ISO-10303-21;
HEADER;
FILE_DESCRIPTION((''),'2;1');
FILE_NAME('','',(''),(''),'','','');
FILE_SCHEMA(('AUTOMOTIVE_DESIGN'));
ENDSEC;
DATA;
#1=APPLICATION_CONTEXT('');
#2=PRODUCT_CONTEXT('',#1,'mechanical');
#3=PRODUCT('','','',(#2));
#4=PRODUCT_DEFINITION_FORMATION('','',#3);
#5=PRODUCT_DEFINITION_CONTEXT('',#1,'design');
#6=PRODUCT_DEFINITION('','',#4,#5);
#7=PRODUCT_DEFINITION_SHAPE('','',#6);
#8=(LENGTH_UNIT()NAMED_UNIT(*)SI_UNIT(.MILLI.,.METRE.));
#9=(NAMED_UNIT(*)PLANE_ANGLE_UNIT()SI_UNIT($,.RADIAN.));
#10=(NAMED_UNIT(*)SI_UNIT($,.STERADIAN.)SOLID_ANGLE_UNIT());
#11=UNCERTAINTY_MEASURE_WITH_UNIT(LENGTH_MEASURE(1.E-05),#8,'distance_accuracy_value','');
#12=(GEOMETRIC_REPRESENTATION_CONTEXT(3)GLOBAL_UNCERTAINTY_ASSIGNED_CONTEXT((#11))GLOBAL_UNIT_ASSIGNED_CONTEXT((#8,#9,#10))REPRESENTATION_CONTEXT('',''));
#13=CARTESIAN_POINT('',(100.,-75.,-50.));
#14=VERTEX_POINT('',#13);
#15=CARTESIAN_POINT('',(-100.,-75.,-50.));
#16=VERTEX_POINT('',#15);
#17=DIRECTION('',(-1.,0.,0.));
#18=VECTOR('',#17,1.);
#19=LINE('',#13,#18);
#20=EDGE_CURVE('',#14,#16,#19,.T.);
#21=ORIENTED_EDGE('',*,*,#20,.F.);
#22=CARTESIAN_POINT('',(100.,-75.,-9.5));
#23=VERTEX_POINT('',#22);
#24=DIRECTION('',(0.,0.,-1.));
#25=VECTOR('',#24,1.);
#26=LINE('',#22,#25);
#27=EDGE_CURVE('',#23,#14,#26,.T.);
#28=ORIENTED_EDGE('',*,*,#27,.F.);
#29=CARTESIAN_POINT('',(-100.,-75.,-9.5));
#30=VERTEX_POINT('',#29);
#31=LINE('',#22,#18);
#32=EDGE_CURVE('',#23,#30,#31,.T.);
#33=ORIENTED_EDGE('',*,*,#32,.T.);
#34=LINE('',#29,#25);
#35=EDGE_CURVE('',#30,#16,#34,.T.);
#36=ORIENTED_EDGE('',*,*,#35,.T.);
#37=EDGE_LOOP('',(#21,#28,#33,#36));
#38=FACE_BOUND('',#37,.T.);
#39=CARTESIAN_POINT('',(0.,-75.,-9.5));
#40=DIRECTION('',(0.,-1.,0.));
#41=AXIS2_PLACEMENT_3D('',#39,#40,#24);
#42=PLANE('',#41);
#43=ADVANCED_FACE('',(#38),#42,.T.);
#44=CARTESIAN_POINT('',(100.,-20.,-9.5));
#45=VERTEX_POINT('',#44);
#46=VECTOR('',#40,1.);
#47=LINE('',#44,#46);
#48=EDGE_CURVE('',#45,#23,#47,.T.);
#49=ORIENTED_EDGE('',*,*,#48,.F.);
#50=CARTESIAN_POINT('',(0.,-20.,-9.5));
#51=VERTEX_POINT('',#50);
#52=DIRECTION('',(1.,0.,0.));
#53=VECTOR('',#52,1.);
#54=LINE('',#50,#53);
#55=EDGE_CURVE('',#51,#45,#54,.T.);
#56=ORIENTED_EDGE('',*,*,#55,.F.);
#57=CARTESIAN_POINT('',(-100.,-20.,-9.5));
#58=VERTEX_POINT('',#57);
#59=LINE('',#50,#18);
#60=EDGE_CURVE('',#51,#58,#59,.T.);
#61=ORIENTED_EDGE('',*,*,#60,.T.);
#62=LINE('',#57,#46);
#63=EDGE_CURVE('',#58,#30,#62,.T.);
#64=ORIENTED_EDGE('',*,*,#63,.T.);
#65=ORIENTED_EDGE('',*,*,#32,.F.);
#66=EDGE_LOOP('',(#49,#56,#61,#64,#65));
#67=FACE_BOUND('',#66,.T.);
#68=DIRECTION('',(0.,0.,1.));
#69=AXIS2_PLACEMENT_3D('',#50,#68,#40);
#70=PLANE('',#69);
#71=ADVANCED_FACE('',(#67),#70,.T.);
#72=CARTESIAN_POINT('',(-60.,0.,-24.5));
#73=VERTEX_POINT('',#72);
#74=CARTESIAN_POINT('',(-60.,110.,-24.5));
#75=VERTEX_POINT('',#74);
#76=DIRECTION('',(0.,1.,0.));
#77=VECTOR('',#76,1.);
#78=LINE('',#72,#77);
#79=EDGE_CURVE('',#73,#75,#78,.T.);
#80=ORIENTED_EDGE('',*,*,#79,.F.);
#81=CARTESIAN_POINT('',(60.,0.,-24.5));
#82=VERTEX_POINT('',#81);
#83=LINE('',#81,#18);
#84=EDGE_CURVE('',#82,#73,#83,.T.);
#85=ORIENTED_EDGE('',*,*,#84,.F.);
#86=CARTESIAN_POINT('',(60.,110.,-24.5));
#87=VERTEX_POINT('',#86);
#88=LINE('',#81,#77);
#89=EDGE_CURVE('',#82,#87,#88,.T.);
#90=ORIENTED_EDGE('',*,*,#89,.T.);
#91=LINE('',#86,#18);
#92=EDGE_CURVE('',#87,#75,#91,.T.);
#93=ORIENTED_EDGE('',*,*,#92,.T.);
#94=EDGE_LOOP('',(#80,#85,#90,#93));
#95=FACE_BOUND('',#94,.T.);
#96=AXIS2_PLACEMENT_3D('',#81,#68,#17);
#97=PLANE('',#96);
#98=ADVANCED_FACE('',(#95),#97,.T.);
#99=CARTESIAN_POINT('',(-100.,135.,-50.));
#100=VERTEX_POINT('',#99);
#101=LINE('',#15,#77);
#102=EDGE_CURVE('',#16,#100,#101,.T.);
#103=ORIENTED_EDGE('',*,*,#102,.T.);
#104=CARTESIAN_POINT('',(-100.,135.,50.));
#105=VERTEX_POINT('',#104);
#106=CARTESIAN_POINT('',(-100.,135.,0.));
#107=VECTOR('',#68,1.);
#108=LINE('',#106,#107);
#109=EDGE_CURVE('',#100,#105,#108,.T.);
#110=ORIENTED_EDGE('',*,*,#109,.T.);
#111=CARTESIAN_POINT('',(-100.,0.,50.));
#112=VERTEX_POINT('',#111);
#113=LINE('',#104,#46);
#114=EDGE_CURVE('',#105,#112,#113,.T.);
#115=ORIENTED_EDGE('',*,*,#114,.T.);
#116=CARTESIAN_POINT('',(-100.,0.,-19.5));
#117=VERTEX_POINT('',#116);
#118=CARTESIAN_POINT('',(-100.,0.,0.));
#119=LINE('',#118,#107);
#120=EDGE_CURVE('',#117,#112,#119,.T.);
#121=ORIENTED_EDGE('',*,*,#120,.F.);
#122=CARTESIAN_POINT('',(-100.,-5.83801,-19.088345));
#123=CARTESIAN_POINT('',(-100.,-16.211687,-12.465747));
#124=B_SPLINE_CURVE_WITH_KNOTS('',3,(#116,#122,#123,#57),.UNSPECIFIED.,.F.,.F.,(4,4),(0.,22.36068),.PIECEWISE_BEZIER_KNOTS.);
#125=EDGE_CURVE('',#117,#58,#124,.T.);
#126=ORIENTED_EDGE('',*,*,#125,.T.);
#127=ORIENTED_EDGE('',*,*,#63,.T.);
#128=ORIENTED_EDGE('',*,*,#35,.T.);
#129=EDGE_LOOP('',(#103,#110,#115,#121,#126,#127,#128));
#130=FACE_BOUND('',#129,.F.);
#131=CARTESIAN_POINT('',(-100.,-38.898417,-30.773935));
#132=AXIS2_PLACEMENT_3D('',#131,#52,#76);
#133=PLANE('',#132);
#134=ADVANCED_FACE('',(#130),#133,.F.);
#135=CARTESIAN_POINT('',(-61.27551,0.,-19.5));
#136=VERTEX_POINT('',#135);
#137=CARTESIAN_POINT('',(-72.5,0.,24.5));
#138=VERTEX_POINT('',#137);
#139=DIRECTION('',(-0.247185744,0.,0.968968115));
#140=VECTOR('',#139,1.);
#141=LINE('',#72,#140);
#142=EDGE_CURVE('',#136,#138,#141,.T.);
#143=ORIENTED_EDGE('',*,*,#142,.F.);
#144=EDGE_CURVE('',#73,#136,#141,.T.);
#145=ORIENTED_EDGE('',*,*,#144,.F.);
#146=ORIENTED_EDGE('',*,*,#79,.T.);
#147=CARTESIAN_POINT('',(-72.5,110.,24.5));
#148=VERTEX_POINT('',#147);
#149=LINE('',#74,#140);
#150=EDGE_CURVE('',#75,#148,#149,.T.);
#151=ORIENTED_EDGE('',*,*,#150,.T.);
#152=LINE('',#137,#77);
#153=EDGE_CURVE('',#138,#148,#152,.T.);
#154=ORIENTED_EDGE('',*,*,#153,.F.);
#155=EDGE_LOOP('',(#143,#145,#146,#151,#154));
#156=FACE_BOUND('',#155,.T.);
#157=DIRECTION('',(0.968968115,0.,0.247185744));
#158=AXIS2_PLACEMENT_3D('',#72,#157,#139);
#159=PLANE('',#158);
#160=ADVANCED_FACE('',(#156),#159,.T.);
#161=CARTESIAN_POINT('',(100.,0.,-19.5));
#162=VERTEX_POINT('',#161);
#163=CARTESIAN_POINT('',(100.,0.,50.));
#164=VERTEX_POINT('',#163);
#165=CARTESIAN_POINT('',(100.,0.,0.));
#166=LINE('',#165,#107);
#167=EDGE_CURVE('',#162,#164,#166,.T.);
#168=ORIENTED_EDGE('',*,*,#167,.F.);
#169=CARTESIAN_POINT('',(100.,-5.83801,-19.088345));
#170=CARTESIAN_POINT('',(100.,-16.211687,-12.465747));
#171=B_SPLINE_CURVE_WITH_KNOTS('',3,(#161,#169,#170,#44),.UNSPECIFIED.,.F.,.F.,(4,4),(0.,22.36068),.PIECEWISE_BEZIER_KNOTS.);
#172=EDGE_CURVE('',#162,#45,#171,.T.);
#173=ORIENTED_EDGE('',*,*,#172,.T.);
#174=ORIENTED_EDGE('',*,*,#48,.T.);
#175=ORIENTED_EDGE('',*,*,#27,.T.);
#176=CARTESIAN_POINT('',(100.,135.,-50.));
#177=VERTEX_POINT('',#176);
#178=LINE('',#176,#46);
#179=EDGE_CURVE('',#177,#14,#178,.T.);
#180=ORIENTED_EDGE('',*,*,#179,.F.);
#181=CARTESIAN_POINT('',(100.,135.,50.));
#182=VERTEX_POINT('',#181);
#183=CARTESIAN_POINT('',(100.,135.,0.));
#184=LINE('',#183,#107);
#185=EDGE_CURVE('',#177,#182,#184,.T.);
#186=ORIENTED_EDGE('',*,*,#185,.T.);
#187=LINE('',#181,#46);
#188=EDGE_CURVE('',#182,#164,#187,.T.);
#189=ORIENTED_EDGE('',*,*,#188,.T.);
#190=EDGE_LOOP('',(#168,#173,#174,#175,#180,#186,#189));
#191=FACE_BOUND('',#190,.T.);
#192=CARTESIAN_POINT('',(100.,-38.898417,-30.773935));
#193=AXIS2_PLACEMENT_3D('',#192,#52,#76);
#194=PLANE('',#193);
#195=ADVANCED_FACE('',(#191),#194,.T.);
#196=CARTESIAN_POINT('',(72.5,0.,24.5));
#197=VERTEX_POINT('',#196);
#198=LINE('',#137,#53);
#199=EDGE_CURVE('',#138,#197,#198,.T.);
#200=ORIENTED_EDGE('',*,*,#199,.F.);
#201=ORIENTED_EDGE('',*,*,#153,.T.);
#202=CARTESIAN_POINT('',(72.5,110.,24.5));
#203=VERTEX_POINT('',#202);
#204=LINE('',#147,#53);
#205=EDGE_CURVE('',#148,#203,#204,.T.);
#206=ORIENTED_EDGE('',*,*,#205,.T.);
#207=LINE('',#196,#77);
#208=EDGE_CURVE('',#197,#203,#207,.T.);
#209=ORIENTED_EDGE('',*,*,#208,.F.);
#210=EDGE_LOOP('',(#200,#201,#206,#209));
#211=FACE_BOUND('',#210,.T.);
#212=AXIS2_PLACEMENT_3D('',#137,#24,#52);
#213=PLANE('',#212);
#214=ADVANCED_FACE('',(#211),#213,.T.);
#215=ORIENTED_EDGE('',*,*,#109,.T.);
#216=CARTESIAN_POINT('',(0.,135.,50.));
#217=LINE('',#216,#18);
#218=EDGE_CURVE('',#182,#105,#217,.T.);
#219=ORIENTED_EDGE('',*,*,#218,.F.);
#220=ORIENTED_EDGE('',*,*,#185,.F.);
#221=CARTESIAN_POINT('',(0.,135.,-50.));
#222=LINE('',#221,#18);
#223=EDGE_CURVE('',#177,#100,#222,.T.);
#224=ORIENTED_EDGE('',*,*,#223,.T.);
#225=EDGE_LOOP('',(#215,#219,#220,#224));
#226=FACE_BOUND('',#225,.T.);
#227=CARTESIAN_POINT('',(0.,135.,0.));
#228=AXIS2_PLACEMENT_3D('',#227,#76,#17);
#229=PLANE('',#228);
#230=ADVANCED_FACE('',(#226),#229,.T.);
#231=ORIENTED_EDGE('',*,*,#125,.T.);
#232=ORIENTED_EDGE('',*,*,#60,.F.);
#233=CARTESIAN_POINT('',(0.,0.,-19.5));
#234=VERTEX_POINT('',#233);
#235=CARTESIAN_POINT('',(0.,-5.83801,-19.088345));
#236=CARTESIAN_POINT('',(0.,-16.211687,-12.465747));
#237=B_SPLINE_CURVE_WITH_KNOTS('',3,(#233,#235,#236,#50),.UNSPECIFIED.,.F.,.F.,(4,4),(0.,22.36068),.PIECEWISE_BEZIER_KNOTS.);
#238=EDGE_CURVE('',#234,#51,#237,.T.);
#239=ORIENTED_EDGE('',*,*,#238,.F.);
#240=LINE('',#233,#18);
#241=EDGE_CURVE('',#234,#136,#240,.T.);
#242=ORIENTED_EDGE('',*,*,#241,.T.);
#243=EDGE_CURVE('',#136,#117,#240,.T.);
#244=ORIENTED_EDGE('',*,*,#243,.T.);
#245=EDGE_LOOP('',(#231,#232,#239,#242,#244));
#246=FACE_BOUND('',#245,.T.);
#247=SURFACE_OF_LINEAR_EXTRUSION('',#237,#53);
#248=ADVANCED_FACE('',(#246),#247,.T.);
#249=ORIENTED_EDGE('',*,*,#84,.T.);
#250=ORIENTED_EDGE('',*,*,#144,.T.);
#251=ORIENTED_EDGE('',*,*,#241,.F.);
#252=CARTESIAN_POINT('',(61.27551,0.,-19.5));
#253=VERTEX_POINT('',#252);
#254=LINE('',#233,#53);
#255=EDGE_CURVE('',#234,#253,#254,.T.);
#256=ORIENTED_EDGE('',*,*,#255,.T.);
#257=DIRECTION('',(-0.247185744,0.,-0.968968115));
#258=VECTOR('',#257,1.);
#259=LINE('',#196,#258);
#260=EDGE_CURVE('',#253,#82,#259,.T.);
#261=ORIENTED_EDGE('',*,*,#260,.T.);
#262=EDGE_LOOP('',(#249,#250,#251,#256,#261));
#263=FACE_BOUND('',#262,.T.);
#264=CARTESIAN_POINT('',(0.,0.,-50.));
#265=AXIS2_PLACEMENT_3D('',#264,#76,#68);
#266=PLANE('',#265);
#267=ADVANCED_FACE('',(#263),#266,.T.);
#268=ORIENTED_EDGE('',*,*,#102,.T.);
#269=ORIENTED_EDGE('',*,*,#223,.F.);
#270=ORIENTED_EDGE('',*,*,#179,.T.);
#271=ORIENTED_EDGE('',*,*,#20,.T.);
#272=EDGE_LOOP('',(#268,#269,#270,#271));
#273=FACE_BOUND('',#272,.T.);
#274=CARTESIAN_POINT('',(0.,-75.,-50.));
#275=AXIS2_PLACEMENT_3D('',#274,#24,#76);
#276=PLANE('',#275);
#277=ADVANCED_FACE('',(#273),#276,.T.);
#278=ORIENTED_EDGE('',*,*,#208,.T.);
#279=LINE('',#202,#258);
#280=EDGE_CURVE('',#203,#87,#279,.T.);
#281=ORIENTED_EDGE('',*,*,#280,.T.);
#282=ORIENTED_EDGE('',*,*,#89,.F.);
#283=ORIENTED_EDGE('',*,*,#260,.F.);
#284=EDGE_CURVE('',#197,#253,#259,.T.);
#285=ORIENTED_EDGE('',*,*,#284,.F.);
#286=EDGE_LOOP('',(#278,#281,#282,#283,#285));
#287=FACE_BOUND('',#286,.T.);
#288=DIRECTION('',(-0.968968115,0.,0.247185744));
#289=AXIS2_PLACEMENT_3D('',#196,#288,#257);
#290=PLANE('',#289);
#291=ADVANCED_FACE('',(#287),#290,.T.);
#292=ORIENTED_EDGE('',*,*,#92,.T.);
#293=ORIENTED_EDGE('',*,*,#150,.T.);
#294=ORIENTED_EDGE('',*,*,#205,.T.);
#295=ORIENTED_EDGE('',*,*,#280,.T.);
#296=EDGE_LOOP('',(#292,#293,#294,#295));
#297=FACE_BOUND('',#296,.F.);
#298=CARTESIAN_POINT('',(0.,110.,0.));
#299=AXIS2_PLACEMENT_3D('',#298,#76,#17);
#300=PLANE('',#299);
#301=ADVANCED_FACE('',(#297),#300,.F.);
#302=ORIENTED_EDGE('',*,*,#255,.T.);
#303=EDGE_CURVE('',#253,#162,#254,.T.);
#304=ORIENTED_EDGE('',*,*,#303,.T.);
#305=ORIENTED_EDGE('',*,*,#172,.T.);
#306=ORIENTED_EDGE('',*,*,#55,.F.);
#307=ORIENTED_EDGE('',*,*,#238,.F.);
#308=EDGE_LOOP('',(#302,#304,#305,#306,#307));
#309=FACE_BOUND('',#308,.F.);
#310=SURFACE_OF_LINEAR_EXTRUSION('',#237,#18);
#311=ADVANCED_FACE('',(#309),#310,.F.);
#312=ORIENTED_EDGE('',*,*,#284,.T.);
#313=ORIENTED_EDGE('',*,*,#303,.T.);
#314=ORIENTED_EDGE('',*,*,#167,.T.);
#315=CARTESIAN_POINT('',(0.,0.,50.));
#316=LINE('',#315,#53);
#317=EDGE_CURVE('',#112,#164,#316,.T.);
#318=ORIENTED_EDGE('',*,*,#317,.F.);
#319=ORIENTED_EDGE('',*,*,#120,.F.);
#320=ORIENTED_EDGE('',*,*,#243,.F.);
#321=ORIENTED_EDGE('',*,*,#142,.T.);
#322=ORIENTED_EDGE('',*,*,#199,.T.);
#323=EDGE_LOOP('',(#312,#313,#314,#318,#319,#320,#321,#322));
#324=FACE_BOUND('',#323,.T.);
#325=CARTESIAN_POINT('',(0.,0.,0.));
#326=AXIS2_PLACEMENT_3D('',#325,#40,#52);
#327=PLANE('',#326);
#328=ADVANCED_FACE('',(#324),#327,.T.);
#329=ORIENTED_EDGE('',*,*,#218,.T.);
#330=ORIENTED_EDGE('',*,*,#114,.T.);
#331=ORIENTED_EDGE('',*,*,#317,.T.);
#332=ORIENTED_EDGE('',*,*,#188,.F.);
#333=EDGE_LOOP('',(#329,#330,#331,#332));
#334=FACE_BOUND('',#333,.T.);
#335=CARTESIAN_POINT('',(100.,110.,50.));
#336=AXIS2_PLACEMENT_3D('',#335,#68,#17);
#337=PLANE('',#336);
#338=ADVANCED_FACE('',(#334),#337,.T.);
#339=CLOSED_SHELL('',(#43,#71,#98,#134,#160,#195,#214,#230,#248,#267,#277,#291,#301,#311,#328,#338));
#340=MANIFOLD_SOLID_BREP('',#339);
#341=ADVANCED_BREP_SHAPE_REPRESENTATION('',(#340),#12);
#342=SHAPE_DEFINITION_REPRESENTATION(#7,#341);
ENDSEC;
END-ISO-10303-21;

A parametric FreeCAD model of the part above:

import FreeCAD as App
import Part
import Sketcher


def add_polygon(sketch, points):
    """Adds a closed chain of lines whose ends are joined by coincident constraints."""
    first, n = sketch.GeometryCount, len(points)
    for a, b in zip(points, points[1:] + points[:1]):
        sketch.addGeometry(Part.LineSegment(App.Vector(*a, 0), App.Vector(*b, 0)), False)
    for i in range(n):
        sketch.addConstraint(Sketcher.Constraint("Coincident", first + i, 2, first + (i + 1) % n, 1))

doc = App.newDocument("Part")
body = doc.addObject("PartDesign::Body", "Body")

sketch1 = body.newObject("Sketcher::SketchObject", "Sketch")
sketch1.AttachmentSupport = (doc.getObject("XZ_Plane"), [""])
sketch1.MapMode = "FlatFace"
add_polygon(sketch1, [(-100, 50), (-100, -50), (100, -50), (100, 50)])
add_polygon(sketch1, [(60, -24), (-60, -24), (-72, 24), (72, 24)])
sketch1.addConstraint(Sketcher.Constraint("Vertical", 0))
sketch1.addConstraint(Sketcher.Constraint("Horizontal", 1))
sketch1.addConstraint(Sketcher.Constraint("Vertical", 2))
sketch1.addConstraint(Sketcher.Constraint("Horizontal", 3))
sketch1.addConstraint(Sketcher.Constraint("Horizontal", 4))
sketch1.addConstraint(Sketcher.Constraint("Horizontal", 6))
sketch1.addConstraint(Sketcher.Constraint("Symmetric", 0, 2, 2, 2, -1, 1))
sketch1.addConstraint(Sketcher.Constraint("Equal", 5, 7))
sketch1.addConstraint(Sketcher.Constraint("DistanceX", 1, 1, 1, 2, 200.0))
sketch1.addConstraint(Sketcher.Constraint("DistanceX", 4, 2, 4, 1, 120.0))
sketch1.addConstraint(Sketcher.Constraint("DistanceX", 6, 1, 6, 2, 145.0))
sketch1.addConstraint(Sketcher.Constraint("DistanceY", 0, 2, 0, 1, 100.0))
sketch1.addConstraint(Sketcher.Constraint("DistanceX", 4, 2, -1, 1, 60.0))
sketch1.addConstraint(Sketcher.Constraint("DistanceY", 4, 2, 5, 2, 49.0))
sketch1.addConstraint(Sketcher.Constraint("DistanceY", 4, 2, -1, 1, 24.5))
pad1 = body.newObject("PartDesign::Pad", "Pad")
pad1.Profile = sketch1
pad1.Length = 110
pad1.Reversed = True

sketch2 = body.newObject("Sketcher::SketchObject", "Sketch001")
sketch2.AttachmentSupport = (doc.getObject("XZ_Plane"), [""])
sketch2.MapMode = "FlatFace"
sketch2.AttachmentOffset = App.Placement(App.Vector(0, 0, -110), App.Rotation())
add_polygon(sketch2, [(100, 50), (100, -50), (-100, -50), (-100, 50)])
sketch2.addConstraint(Sketcher.Constraint("Vertical", 0))
sketch2.addConstraint(Sketcher.Constraint("Horizontal", 1))
sketch2.addConstraint(Sketcher.Constraint("Vertical", 2))
sketch2.addConstraint(Sketcher.Constraint("Horizontal", 3))
sketch2.addConstraint(Sketcher.Constraint("Symmetric", 0, 2, 2, 2, -1, 1))
sketch2.addConstraint(Sketcher.Constraint("DistanceX", 1, 2, 1, 1, 200.0))
sketch2.addConstraint(Sketcher.Constraint("DistanceY", 0, 2, 0, 1, 100.0))
pad2 = body.newObject("PartDesign::Pad", "Pad001")
pad2.Profile = sketch2
pad2.Length = 25
pad2.Reversed = True

sketch3 = body.newObject("Sketcher::SketchObject", "Sketch002")
sketch3.AttachmentSupport = (doc.getObject("YZ_Plane"), [""])
sketch3.MapMode = "FlatFace"
sketch3.addGeometry(Part.LineSegment(App.Vector(-75, -50, 0), App.Vector(0, -50, 0)), False)
sketch3.addGeometry(Part.LineSegment(App.Vector(0, -50, 0), App.Vector(0, -19.5, 0)), False)
sketch3.addGeometry(Part.BSplineCurve([App.Vector(0, -19.5, 0), App.Vector(-5.83801, -19.088345, 0), App.Vector(-16.211687, -12.465747, 0), App.Vector(-20, -9.5, 0)], [4, 4], [0, 22.36068], False, 3, [1, 1, 1, 1], False), False)
sketch3.addGeometry(Part.LineSegment(App.Vector(-20, -9.5, 0), App.Vector(-75, -9.5, 0)), False)
sketch3.addGeometry(Part.LineSegment(App.Vector(-75, -9.5, 0), App.Vector(-75, -50, 0)), False)
sketch3.addConstraint(Sketcher.Constraint("Block", 2))
sketch3.addConstraint(Sketcher.Constraint("Coincident", 0, 2, 1, 1))
sketch3.addConstraint(Sketcher.Constraint("Coincident", 1, 2, 2, 1))
sketch3.addConstraint(Sketcher.Constraint("Coincident", 2, 2, 3, 1))
sketch3.addConstraint(Sketcher.Constraint("Coincident", 3, 2, 4, 1))
sketch3.addConstraint(Sketcher.Constraint("Coincident", 4, 2, 0, 1))
sketch3.addConstraint(Sketcher.Constraint("Horizontal", 0))
sketch3.addConstraint(Sketcher.Constraint("Vertical", 1))
sketch3.addConstraint(Sketcher.Constraint("Horizontal", 3))
sketch3.addConstraint(Sketcher.Constraint("Vertical", 4))
sketch3.addConstraint(Sketcher.Constraint("DistanceX", 0, 1, 0, 2, 75.0))
sketch3.addConstraint(Sketcher.Constraint("DistanceY", 1, 1, 1, 2, 30.5))
pad3 = body.newObject("PartDesign::Pad", "Pad002")
pad3.Profile = sketch3
pad3.Length = 200
pad3.Midplane = True

doc.recompute()
